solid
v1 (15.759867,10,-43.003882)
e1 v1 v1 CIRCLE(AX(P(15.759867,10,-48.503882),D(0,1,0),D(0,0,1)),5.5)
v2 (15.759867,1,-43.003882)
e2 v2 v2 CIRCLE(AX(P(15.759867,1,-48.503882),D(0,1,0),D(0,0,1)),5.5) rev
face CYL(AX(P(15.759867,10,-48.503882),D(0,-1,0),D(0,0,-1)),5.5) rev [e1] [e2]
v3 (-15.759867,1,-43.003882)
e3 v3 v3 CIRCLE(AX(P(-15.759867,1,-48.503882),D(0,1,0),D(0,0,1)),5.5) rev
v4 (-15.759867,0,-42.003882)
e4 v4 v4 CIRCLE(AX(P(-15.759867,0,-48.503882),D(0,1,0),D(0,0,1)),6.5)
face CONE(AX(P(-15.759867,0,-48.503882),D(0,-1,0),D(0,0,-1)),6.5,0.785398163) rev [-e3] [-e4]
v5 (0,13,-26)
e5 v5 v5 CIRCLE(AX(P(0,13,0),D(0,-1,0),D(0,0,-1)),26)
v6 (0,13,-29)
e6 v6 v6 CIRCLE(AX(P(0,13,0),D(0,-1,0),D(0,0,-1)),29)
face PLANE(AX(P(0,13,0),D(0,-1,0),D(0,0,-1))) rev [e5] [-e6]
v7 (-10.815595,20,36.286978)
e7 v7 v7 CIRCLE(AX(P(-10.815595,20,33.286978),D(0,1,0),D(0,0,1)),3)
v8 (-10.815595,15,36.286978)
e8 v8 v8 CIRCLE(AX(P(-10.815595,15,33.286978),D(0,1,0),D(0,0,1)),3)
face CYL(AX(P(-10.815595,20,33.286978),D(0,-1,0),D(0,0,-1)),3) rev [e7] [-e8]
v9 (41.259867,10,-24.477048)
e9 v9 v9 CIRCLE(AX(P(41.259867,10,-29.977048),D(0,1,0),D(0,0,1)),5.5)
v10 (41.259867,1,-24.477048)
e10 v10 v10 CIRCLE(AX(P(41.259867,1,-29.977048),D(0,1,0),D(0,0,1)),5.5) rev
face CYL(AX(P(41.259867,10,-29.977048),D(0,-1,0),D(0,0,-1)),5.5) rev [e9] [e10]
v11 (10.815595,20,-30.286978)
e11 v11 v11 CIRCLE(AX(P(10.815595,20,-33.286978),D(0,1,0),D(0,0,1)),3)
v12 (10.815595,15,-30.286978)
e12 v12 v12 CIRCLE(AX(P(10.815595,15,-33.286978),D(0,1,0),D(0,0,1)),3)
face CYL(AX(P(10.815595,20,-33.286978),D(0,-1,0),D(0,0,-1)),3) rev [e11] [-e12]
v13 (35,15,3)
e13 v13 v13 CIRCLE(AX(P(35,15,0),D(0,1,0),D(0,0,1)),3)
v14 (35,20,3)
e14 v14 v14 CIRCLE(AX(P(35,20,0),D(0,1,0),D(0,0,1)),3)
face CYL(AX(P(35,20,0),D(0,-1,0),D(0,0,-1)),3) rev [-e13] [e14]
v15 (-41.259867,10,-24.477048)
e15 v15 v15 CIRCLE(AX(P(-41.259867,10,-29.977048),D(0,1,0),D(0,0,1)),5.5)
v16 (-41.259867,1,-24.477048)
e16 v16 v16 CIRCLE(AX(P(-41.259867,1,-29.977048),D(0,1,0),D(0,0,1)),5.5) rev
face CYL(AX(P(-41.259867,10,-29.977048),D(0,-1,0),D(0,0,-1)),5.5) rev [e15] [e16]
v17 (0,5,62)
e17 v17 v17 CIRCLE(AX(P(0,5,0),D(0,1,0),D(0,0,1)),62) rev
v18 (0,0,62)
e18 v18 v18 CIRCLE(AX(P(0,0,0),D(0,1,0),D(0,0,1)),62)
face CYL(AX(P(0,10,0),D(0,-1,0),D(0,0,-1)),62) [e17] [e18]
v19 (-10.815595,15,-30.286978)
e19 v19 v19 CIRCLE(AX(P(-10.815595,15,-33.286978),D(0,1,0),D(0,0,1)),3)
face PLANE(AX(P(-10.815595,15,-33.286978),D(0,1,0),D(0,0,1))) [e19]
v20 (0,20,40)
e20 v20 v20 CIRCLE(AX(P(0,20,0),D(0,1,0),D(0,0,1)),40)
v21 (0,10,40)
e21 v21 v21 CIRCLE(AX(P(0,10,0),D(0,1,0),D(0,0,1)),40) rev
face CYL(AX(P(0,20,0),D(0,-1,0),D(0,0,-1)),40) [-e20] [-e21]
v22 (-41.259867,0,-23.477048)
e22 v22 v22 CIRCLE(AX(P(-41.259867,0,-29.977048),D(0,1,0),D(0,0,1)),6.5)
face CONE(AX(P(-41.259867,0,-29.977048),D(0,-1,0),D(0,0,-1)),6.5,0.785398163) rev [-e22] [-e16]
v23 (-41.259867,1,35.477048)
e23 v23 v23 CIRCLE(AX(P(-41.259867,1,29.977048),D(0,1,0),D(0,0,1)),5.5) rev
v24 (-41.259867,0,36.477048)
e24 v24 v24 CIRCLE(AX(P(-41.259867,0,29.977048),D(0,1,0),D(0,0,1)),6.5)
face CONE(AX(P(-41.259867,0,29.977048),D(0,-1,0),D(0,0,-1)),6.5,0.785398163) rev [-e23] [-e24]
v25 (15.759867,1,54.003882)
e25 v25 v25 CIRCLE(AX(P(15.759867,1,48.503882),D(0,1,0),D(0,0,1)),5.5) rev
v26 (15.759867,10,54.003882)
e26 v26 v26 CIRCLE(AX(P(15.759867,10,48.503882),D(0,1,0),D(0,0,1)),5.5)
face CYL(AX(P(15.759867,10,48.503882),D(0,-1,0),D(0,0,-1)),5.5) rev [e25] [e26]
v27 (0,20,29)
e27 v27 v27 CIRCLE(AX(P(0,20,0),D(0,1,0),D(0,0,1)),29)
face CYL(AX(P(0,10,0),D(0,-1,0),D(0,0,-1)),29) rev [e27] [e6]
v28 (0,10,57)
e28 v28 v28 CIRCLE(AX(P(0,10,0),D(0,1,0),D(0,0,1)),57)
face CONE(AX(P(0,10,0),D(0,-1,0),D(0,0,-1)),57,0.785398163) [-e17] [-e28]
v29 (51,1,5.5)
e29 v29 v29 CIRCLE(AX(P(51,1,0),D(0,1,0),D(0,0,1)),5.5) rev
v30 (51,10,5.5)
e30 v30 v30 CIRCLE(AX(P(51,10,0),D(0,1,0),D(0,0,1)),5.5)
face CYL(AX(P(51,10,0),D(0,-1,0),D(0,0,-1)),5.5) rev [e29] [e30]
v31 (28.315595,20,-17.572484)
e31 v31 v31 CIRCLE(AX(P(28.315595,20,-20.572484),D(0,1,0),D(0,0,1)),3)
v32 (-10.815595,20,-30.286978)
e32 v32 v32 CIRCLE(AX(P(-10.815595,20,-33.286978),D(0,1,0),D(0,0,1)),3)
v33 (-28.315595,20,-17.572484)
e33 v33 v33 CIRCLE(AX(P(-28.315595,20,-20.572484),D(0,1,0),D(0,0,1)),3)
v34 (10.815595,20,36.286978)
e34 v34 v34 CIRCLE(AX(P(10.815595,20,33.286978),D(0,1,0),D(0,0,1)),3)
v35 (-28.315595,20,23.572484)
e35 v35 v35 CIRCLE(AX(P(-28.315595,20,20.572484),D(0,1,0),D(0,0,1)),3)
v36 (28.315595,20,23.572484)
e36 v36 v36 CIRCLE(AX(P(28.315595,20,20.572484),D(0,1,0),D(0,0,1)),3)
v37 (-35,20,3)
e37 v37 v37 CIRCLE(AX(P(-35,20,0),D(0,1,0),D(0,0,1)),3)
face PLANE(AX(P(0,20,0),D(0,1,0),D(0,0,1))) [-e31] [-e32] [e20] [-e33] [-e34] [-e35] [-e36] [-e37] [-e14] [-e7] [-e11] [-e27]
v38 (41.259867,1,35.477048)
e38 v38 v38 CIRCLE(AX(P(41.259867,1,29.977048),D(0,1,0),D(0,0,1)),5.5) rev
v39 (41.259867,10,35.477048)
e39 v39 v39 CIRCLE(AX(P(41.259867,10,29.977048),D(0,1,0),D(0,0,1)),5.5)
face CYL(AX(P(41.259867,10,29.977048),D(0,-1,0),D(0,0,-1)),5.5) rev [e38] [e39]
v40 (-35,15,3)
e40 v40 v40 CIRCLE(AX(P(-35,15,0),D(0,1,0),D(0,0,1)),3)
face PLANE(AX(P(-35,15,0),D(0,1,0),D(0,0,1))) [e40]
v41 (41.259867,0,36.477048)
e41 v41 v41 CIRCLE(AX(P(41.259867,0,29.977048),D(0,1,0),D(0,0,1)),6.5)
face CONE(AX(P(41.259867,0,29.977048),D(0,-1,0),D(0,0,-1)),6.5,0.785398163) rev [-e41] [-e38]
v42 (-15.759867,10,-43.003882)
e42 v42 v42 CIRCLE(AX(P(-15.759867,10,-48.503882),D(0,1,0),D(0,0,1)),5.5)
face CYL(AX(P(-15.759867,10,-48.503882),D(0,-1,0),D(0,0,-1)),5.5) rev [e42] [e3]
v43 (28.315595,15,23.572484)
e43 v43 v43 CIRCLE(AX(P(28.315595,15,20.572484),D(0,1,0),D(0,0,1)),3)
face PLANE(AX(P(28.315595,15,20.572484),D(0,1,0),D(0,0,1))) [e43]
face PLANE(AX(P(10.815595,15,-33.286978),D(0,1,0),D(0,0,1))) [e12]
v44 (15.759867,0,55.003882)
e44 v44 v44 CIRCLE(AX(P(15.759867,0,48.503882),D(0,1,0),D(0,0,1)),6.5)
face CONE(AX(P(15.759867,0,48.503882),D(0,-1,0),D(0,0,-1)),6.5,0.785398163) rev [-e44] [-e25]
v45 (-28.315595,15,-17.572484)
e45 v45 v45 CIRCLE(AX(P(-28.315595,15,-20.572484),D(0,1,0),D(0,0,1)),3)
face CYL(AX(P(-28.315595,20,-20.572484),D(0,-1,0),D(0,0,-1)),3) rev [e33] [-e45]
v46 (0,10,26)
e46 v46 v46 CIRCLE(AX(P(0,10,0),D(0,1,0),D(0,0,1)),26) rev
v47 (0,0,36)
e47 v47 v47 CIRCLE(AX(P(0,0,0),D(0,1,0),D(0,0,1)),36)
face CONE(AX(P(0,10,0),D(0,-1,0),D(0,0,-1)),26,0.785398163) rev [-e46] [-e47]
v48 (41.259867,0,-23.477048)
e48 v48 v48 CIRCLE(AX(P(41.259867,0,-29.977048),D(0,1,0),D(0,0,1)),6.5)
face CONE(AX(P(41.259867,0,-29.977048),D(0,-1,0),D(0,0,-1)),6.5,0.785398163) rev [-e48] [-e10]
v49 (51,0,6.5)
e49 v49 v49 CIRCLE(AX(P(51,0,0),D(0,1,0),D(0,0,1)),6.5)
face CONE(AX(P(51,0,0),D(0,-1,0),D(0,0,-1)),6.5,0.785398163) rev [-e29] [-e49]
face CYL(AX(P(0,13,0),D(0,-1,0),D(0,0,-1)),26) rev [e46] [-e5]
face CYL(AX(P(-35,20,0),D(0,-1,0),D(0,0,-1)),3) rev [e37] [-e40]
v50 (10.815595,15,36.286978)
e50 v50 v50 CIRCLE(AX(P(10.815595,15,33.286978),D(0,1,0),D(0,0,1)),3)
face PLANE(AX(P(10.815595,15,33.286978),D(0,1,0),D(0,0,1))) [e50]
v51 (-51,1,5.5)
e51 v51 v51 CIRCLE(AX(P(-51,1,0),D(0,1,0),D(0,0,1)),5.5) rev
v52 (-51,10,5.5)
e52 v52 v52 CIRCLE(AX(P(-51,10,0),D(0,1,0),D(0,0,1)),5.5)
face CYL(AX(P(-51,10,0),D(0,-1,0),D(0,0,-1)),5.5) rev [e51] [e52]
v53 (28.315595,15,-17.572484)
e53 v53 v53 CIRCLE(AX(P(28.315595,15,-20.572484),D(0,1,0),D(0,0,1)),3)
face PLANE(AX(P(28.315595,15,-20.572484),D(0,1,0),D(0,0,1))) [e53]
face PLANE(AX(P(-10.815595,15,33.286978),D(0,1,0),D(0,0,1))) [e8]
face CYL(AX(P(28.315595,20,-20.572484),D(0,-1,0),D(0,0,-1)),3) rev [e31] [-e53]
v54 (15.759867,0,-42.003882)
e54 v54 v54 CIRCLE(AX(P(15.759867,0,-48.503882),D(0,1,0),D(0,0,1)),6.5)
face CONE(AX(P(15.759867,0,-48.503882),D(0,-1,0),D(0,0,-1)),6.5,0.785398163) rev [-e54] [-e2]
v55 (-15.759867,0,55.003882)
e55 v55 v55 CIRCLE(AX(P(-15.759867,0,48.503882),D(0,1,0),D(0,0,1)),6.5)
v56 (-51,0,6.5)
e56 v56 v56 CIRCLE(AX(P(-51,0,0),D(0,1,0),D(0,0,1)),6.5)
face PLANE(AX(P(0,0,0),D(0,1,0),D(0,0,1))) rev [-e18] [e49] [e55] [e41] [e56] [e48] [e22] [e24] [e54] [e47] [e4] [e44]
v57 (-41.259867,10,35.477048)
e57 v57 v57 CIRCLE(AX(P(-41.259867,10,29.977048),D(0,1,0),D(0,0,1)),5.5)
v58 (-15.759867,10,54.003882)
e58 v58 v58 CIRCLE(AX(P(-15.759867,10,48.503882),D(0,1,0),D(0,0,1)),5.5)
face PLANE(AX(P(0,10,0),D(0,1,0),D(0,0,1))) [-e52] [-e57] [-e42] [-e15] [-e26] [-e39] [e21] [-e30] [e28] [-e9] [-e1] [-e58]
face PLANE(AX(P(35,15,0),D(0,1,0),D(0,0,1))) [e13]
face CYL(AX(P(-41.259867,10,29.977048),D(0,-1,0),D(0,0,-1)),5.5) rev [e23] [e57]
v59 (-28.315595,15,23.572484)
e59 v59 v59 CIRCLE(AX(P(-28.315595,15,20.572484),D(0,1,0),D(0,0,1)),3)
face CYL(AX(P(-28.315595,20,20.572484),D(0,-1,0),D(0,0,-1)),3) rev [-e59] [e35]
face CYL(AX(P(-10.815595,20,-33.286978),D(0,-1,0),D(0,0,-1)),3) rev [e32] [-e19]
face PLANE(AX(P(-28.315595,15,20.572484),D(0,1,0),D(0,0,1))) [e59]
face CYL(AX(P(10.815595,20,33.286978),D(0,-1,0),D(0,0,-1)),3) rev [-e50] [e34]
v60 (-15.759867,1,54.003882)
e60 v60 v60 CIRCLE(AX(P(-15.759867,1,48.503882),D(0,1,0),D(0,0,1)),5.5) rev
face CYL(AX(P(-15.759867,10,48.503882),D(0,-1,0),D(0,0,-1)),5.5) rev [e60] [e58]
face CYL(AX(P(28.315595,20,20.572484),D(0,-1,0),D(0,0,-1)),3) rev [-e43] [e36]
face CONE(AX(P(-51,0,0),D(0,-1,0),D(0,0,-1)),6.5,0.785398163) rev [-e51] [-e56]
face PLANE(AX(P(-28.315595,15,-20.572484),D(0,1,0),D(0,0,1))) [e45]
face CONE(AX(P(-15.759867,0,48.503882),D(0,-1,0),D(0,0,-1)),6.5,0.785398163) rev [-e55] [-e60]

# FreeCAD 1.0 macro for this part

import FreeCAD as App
import Part
import Sketcher
Q = App.Units.Quantity


def edges_at(feature, points):
    """Names of the edges that pass closest to the given points."""
    edges = feature.Shape.Edges
    near = lambda p: min(range(len(edges)), key=lambda i: edges[i].distToShape(Part.Vertex(*p))[0])
    return sorted({f"Edge{near(p) + 1}" for p in points})

doc = App.newDocument("Part")
params = doc.addObject("Spreadsheet::Sheet", "Params")
for row, (alias, value) in enumerate([
    ("sketch1_diameter", "124 mm"),
    ("sketch1_diameter2", "11 mm"),
    ("sketch1_diameter3", "58 mm"),
    ("pad1_length", "10 mm"),
    ("sketch2_diameter", "80 mm"),
    ("sketch2_diameter2", "6 mm"),
    ("sketch2_diameter3", "58 mm"),
    ("pad2_length", "20 mm"),
    ("sketch3_diameter", "6 mm"),
    ("pad3_length", "5 mm"),
    ("chamfer_size", "5 mm"),
    ("chamfer2_size", "1 mm"),
    ("sketch4_diameter", "58 mm"),
    ("sketch4_diameter2", "52 mm"),
    ("pad4_length", "13 mm"),
    ("chamfer3_size", "10 mm"),
], start=1):
    params.set(f"A{row}", alias)
    params.set(f"B{row}", "=" + value)
    params.setAlias(f"B{row}", alias)

body = doc.addObject("PartDesign::Body", "Body")

# Sketch on XZ plane
sketch1 = body.newObject("Sketcher::SketchObject", "Sketch")
sketch1.AttachmentSupport = (doc.getObject("XZ_Plane"), [""])
sketch1.MapMode = "FlatFace"
sketch1.addGeometry(Part.Circle(App.Vector(0, 0, 0), App.Vector(0, 0, 1), 62), False)
sketch1.addGeometry(Part.Circle(App.Vector(-41, 30, 0), App.Vector(0, 0, 1), 6), False)
sketch1.addGeometry(Part.Circle(App.Vector(-16, 49, 0), App.Vector(0, 0, 1), 6), False)
sketch1.addGeometry(Part.Circle(App.Vector(-51, 0, 0), App.Vector(0, 0, 1), 6), False)
sketch1.addGeometry(Part.Circle(App.Vector(16, 49, 0), App.Vector(0, 0, 1), 6), False)
sketch1.addGeometry(Part.Circle(App.Vector(41, 30, 0), App.Vector(0, 0, 1), 6), False)
sketch1.addGeometry(Part.Circle(App.Vector(0, 0, 0), App.Vector(0, 0, 1), 29), False)
sketch1.addGeometry(Part.Circle(App.Vector(51, 0, 0), App.Vector(0, 0, 1), 6), False)
sketch1.addGeometry(Part.Circle(App.Vector(-41, -30, 0), App.Vector(0, 0, 1), 6), False)
sketch1.addGeometry(Part.Circle(App.Vector(-16, -49, 0), App.Vector(0, 0, 1), 6), False)
sketch1.addGeometry(Part.Circle(App.Vector(16, -49, 0), App.Vector(0, 0, 1), 6), False)
sketch1.addGeometry(Part.Circle(App.Vector(41, -30, 0), App.Vector(0, 0, 1), 6), False)
sketch1.addConstraint(Sketcher.Constraint("Coincident", 0, 3, -1, 1))
sketch1.addConstraint(Sketcher.Constraint("Coincident", 6, 3, -1, 1))
sketch1.addConstraint(Sketcher.Constraint("Equal", 1, 2))
sketch1.addConstraint(Sketcher.Constraint("Equal", 2, 3))
sketch1.addConstraint(Sketcher.Constraint("Equal", 3, 4))
sketch1.addConstraint(Sketcher.Constraint("Equal", 4, 5))
sketch1.addConstraint(Sketcher.Constraint("Equal", 5, 7))
sketch1.addConstraint(Sketcher.Constraint("Equal", 7, 8))
sketch1.addConstraint(Sketcher.Constraint("Equal", 8, 9))
sketch1.addConstraint(Sketcher.Constraint("Equal", 9, 10))
sketch1.addConstraint(Sketcher.Constraint("Equal", 10, 11))
sketch1.addConstraint(Sketcher.Constraint("Symmetric", 3, 3, 7, 3, -1, 1))
sketch1.addConstraint(Sketcher.Constraint("Symmetric", 5, 3, 8, 3, -1, 1))
sketch1.addConstraint(Sketcher.Constraint("Symmetric", 4, 3, 9, 3, -1, 1))
sketch1.addConstraint(Sketcher.Constraint("Symmetric", 2, 3, 10, 3, -1, 1))
sketch1.addConstraint(Sketcher.Constraint("Symmetric", 1, 3, 11, 3, -1, 1))
sketch1.addConstraint(Sketcher.Constraint("Symmetric", 2, 3, 4, 3, -2))
sketch1.addConstraint(Sketcher.Constraint("Symmetric", 1, 3, 5, 3, -2))
sketch1.addConstraint(Sketcher.Constraint("PointOnObject", 3, 3, -1))
sketch1.addConstraint(Sketcher.Constraint("Diameter", 0, Q("124 mm")))
sketch1.addConstraint(Sketcher.Constraint("Diameter", 1, Q("11 mm")))
sketch1.addConstraint(Sketcher.Constraint("Diameter", 6, Q("58 mm")))
sketch1.addConstraint(Sketcher.Constraint("DistanceX", 3, 3, -1, 1, Q("51 mm")))
sketch1.addConstraint(Sketcher.Constraint("DistanceX", 1, 3, 2, 3, Q("25.5 mm")))
sketch1.addConstraint(Sketcher.Constraint("DistanceY", 8, 3, 2, 3, Q("78.48093 mm")))
sketch1.addConstraint(Sketcher.Constraint("DistanceX", 1, 3, -1, 1, Q("41.259867 mm")))
sketch1.addConstraint(Sketcher.Constraint("DistanceY", -1, 1, 1, 3, Q("29.977048 mm")))
sketch1.setExpression("Constraints[19]", "Params.sketch1_diameter")
sketch1.setExpression("Constraints[20]", "Params.sketch1_diameter2")
sketch1.setExpression("Constraints[21]", "Params.sketch1_diameter3")
pad1 = body.newObject("PartDesign::Pad", "Pad")
pad1.Profile = sketch1
pad1.setExpression("Length", "Params.pad1_length")
pad1.Reversed = True

# Sketch on XZ plane
sketch2 = body.newObject("Sketcher::SketchObject", "Sketch001")
sketch2.AttachmentSupport = (doc.getObject("XZ_Plane"), [""])
sketch2.MapMode = "FlatFace"
sketch2.addGeometry(Part.Circle(App.Vector(0, 0, 0), App.Vector(0, 0, 1), 40), False)
sketch2.addGeometry(Part.Circle(App.Vector(-28.3, 20.6, 0), App.Vector(0, 0, 1), 3), False)
sketch2.addGeometry(Part.Circle(App.Vector(-10.8, 33.3, 0), App.Vector(0, 0, 1), 3), False)
sketch2.addGeometry(Part.Circle(App.Vector(10.8, 33.3, 0), App.Vector(0, 0, 1), 3), False)
sketch2.addGeometry(Part.Circle(App.Vector(28.3, 20.6, 0), App.Vector(0, 0, 1), 3), False)
sketch2.addGeometry(Part.Circle(App.Vector(-35, 0, 0), App.Vector(0, 0, 1), 3), False)
sketch2.addGeometry(Part.Circle(App.Vector(-28.3, -20.6, 0), App.Vector(0, 0, 1), 3), False)
sketch2.addGeometry(Part.Circle(App.Vector(-10.8, -33.3, 0), App.Vector(0, 0, 1), 3), False)
sketch2.addGeometry(Part.Circle(App.Vector(0, 0, 0), App.Vector(0, 0, 1), 29), False)
sketch2.addGeometry(Part.Circle(App.Vector(35, 0, 0), App.Vector(0, 0, 1), 3), False)
sketch2.addGeometry(Part.Circle(App.Vector(10.8, -33.3, 0), App.Vector(0, 0, 1), 3), False)
sketch2.addGeometry(Part.Circle(App.Vector(28.3, -20.6, 0), App.Vector(0, 0, 1), 3), False)
sketch2.addConstraint(Sketcher.Constraint("Coincident", 0, 3, -1, 1))
sketch2.addConstraint(Sketcher.Constraint("Coincident", 8, 3, -1, 1))
sketch2.addConstraint(Sketcher.Constraint("Equal", 1, 2))
sketch2.addConstraint(Sketcher.Constraint("Equal", 2, 3))
sketch2.addConstraint(Sketcher.Constraint("Equal", 3, 4))
sketch2.addConstraint(Sketcher.Constraint("Equal", 4, 5))
sketch2.addConstraint(Sketcher.Constraint("Equal", 5, 6))
sketch2.addConstraint(Sketcher.Constraint("Equal", 6, 7))
sketch2.addConstraint(Sketcher.Constraint("Equal", 7, 9))
sketch2.addConstraint(Sketcher.Constraint("Equal", 9, 10))
sketch2.addConstraint(Sketcher.Constraint("Equal", 10, 11))
sketch2.addConstraint(Sketcher.Constraint("Symmetric", 4, 3, 6, 3, -1, 1))
sketch2.addConstraint(Sketcher.Constraint("Symmetric", 3, 3, 7, 3, -1, 1))
sketch2.addConstraint(Sketcher.Constraint("Symmetric", 5, 3, 9, 3, -1, 1))
sketch2.addConstraint(Sketcher.Constraint("Symmetric", 2, 3, 10, 3, -1, 1))
sketch2.addConstraint(Sketcher.Constraint("Symmetric", 1, 3, 11, 3, -1, 1))
sketch2.addConstraint(Sketcher.Constraint("Symmetric", 2, 3, 3, 3, -2))
sketch2.addConstraint(Sketcher.Constraint("Symmetric", 1, 3, 4, 3, -2))
sketch2.addConstraint(Sketcher.Constraint("PointOnObject", 5, 3, -1))
sketch2.addConstraint(Sketcher.Constraint("Diameter", 0, Q("80 mm")))
sketch2.addConstraint(Sketcher.Constraint("Diameter", 1, Q("6 mm")))
sketch2.addConstraint(Sketcher.Constraint("Diameter", 8, Q("58 mm")))
sketch2.addConstraint(Sketcher.Constraint("DistanceX", 5, 3, -1, 1, Q("35 mm")))
sketch2.addConstraint(Sketcher.Constraint("DistanceX", 1, 3, 2, 3, Q("17.5 mm")))
sketch2.addConstraint(Sketcher.Constraint("DistanceY", -1, 1, 2, 3, Q("33.286978 mm")))
sketch2.addConstraint(Sketcher.Constraint("DistanceX", 2, 3, 3, 3, Q("21.63119 mm")))
sketch2.addConstraint(Sketcher.Constraint("DistanceY", 6, 3, 2, 3, Q("53.859462 mm")))
sketch2.setExpression("Constraints[19]", "Params.sketch2_diameter")
sketch2.setExpression("Constraints[20]", "Params.sketch2_diameter2")
sketch2.setExpression("Constraints[21]", "Params.sketch2_diameter3")
pad2 = body.newObject("PartDesign::Pad", "Pad001")
pad2.Profile = sketch2
pad2.setExpression("Length", "Params.pad2_length")
pad2.Reversed = True

# Sketch on XZ plane
sketch3 = body.newObject("Sketcher::SketchObject", "Sketch002")
sketch3.AttachmentSupport = (doc.getObject("XZ_Plane"), [""])
sketch3.MapMode = "FlatFace"
sketch3.AttachmentOffset = App.Placement(App.Vector(0, 0, -15), App.Rotation())
sketch3.addGeometry(Part.Circle(App.Vector(-28.3, 20.6, 0), App.Vector(0, 0, 1), 3), False)
sketch3.addGeometry(Part.Circle(App.Vector(-35, 0, 0), App.Vector(0, 0, 1), 3), False)
sketch3.addGeometry(Part.Circle(App.Vector(-28.3, -20.6, 0), App.Vector(0, 0, 1), 3), False)
sketch3.addGeometry(Part.Circle(App.Vector(-10.8, -33.3, 0), App.Vector(0, 0, 1), 3), False)
sketch3.addGeometry(Part.Circle(App.Vector(10.8, -33.3, 0), App.Vector(0, 0, 1), 3), False)
sketch3.addGeometry(Part.Circle(App.Vector(28.3, -20.6, 0), App.Vector(0, 0, 1), 3), False)
sketch3.addGeometry(Part.Circle(App.Vector(35, 0, 0), App.Vector(0, 0, 1), 3), False)
sketch3.addGeometry(Part.Circle(App.Vector(28.3, 20.6, 0), App.Vector(0, 0, 1), 3), False)
sketch3.addGeometry(Part.Circle(App.Vector(10.8, 33.3, 0), App.Vector(0, 0, 1), 3), False)
sketch3.addGeometry(Part.Circle(App.Vector(-10.8, 33.3, 0), App.Vector(0, 0, 1), 3), False)
sketch3.addConstraint(Sketcher.Constraint("Equal", 0, 1))
sketch3.addConstraint(Sketcher.Constraint("Equal", 1, 2))
sketch3.addConstraint(Sketcher.Constraint("Equal", 2, 3))
sketch3.addConstraint(Sketcher.Constraint("Equal", 3, 4))
sketch3.addConstraint(Sketcher.Constraint("Equal", 4, 5))
sketch3.addConstraint(Sketcher.Constraint("Equal", 5, 6))
sketch3.addConstraint(Sketcher.Constraint("Equal", 6, 7))
sketch3.addConstraint(Sketcher.Constraint("Equal", 7, 8))
sketch3.addConstraint(Sketcher.Constraint("Equal", 8, 9))
sketch3.addConstraint(Sketcher.Constraint("Symmetric", 0, 3, 5, 3, -1, 1))
sketch3.addConstraint(Sketcher.Constraint("Symmetric", 1, 3, 6, 3, -1, 1))
sketch3.addConstraint(Sketcher.Constraint("Symmetric", 2, 3, 7, 3, -1, 1))
sketch3.addConstraint(Sketcher.Constraint("Symmetric", 3, 3, 8, 3, -1, 1))
sketch3.addConstraint(Sketcher.Constraint("Symmetric", 4, 3, 9, 3, -1, 1))
sketch3.addConstraint(Sketcher.Constraint("Symmetric", 3, 3, 4, 3, -2))
sketch3.addConstraint(Sketcher.Constraint("Symmetric", 2, 3, 5, 3, -2))
sketch3.addConstraint(Sketcher.Constraint("PointOnObject", 1, 3, -1))
sketch3.addConstraint(Sketcher.Constraint("Diameter", 0, Q("6 mm")))
sketch3.addConstraint(Sketcher.Constraint("DistanceX", 1, 3, -1, 1, Q("35 mm")))
sketch3.addConstraint(Sketcher.Constraint("DistanceX", 2, 3, 3, 3, Q("17.5 mm")))
sketch3.addConstraint(Sketcher.Constraint("DistanceY", 3, 3, -1, 1, Q("33.286978 mm")))
sketch3.addConstraint(Sketcher.Constraint("DistanceY", 3, 3, 0, 3, Q("53.859462 mm")))
sketch3.addConstraint(Sketcher.Constraint("DistanceX", 3, 3, 4, 3, Q("21.63119 mm")))
sketch3.setExpression("Constraints[17]", "Params.sketch3_diameter")
pad3 = body.newObject("PartDesign::Pad", "Pad002")
pad3.Profile = sketch3
pad3.setExpression("Length", "Params.pad3_length")
doc.recompute()

chamfer = body.newObject("PartDesign::Chamfer", "Chamfer")
chamfer.Base = (pad3, edges_at(pad3, [(-62, 10, 0)]))
chamfer.setExpression("Size", "Params.chamfer_size")
doc.recompute()

chamfer2 = body.newObject("PartDesign::Chamfer", "Chamfer001")
chamfer2.Base = (chamfer, edges_at(chamfer, [
    (10.26, 0, -48.504),
    (-21.26, 0, -48.504),
    (-46.76, 0, -29.977),
    (-56.5, 0, 0),
    (-46.76, 0, 29.977),
    (-21.26, 0, 48.504),
    (10.26, 0, 48.504),
    (35.76, 0, 29.977),
    (45.5, 0, 0),
    (35.76, 0, -29.977),
]))
chamfer2.setExpression("Size", "Params.chamfer2_size")

# Sketch on XZ plane
sketch4 = body.newObject("Sketcher::SketchObject", "Sketch003")
sketch4.AttachmentSupport = (doc.getObject("XZ_Plane"), [""])
sketch4.MapMode = "FlatFace"
sketch4.addGeometry(Part.Circle(App.Vector(0, 0, 0), App.Vector(0, 0, 1), 29), False)
sketch4.addGeometry(Part.Circle(App.Vector(0, 0, 0), App.Vector(0, 0, 1), 26), False)
sketch4.addConstraint(Sketcher.Constraint("Coincident", 0, 3, -1, 1))
sketch4.addConstraint(Sketcher.Constraint("Coincident", 1, 3, -1, 1))
sketch4.addConstraint(Sketcher.Constraint("Diameter", 0, Q("58 mm")))
sketch4.addConstraint(Sketcher.Constraint("Diameter", 1, Q("52 mm")))
sketch4.setExpression("Constraints[2]", "Params.sketch4_diameter")
sketch4.setExpression("Constraints[3]", "Params.sketch4_diameter2")
pad4 = body.newObject("PartDesign::Pad", "Pad003")
pad4.Profile = sketch4
pad4.setExpression("Length", "Params.pad4_length")
pad4.Reversed = True
doc.recompute()

chamfer3 = body.newObject("PartDesign::Chamfer", "Chamfer002")
chamfer3.Base = (pad4, edges_at(pad4, [(-26, 0, 0)]))
chamfer3.setExpression("Size", "Params.chamfer3_size")

doc.recompute()
